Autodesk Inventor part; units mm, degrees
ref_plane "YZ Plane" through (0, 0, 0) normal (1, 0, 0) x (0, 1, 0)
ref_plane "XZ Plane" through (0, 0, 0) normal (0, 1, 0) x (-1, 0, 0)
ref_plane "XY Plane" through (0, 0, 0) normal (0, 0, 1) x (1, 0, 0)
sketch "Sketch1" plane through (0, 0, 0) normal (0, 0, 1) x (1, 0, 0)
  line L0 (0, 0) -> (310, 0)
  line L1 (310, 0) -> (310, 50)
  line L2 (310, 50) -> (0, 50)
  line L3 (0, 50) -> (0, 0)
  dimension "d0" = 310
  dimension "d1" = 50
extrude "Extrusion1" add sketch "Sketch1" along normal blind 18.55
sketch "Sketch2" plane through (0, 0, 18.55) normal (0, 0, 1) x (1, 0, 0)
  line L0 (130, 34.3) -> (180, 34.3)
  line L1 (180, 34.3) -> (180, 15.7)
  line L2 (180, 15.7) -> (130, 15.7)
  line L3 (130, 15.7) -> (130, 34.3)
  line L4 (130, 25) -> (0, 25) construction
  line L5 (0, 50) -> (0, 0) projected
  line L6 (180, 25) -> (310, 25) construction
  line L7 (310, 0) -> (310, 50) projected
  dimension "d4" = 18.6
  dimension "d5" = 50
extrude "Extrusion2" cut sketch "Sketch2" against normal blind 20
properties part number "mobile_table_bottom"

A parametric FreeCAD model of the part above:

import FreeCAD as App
import Part
import Sketcher
Q = App.Units.Quantity

doc = App.newDocument("Part")
body = doc.addObject("PartDesign::Body", "Body")

sketch1 = doc.addObject("Sketcher::SketchObject", "Sketch")
body.addObject(sketch1)
sketch1.AttachmentSupport = (doc.XY_Plane, [""])
sketch1.MapMode = "FlatFace"
sketch1.addGeometry([
    Part.LineSegment(App.Vector(0, 50, 0), App.Vector(0, 0, 0)),
    Part.LineSegment(App.Vector(0, 0, 0), App.Vector(310, 0, 0)),
    Part.LineSegment(App.Vector(310, 0, 0), App.Vector(310, 50, 0)),
    Part.LineSegment(App.Vector(310, 50, 0), App.Vector(0, 50, 0)),
], False)
sketch1.addConstraint([
    Sketcher.Constraint("Coincident", 0, 2, 1, 1),
    Sketcher.Constraint("Coincident", 1, 2, 2, 1),
    Sketcher.Constraint("Coincident", 2, 2, 3, 1),
    Sketcher.Constraint("Coincident", 3, 2, 0, 1),
    Sketcher.Constraint("Vertical", 0),
    Sketcher.Constraint("Horizontal", 1),
    Sketcher.Constraint("Vertical", 2),
    Sketcher.Constraint("Horizontal", 3),
    Sketcher.Constraint("Coincident", 0, 2, -1, 1),
    Sketcher.Constraint("DistanceX", 1, 1, 1, 2, Q("310 mm")),
    Sketcher.Constraint("DistanceY", 0, 2, 0, 1, Q("50 mm")),
])
pad1 = doc.addObject("PartDesign::Pad", "Pad")
body.addObject(pad1)
pad1.Profile = sketch1
pad1.Length = 18.55

sketch2 = doc.addObject("Sketcher::SketchObject", "Sketch001")
body.addObject(sketch2)
sketch2.AttachmentSupport = (doc.XY_Plane, [""])
sketch2.MapMode = "FlatFace"
sketch2.AttachmentOffset = App.Placement(App.Vector(0, 0, 18.55), App.Rotation())
sketch2.addGeometry([
    Part.LineSegment(App.Vector(180, 34, 0), App.Vector(130, 34, 0)),
    Part.LineSegment(App.Vector(130, 34, 0), App.Vector(130, 16, 0)),
    Part.LineSegment(App.Vector(130, 16, 0), App.Vector(180, 16, 0)),
    Part.LineSegment(App.Vector(180, 16, 0), App.Vector(180, 34, 0)),
], False)
sketch2.addConstraint([
    Sketcher.Constraint("Coincident", 0, 2, 1, 1),
    Sketcher.Constraint("Coincident", 1, 2, 2, 1),
    Sketcher.Constraint("Coincident", 2, 2, 3, 1),
    Sketcher.Constraint("Coincident", 3, 2, 0, 1),
    Sketcher.Constraint("Horizontal", 0),
    Sketcher.Constraint("Vertical", 1),
    Sketcher.Constraint("Horizontal", 2),
    Sketcher.Constraint("Vertical", 3),
    Sketcher.Constraint("DistanceX", 0, 2, 0, 1, Q("50 mm")),
    Sketcher.Constraint("DistanceY", 1, 2, 1, 1, Q("18.6 mm")),
    Sketcher.Constraint("DistanceX", -1, 1, 0, 2, Q("130 mm")),
    Sketcher.Constraint("DistanceY", -1, 1, 0, 2, Q("34.3 mm")),
])
pocket1 = doc.addObject("PartDesign::Pocket", "Pocket")
body.addObject(pocket1)
pocket1.Profile = sketch2
pocket1.Length = 20

doc.recompute()
